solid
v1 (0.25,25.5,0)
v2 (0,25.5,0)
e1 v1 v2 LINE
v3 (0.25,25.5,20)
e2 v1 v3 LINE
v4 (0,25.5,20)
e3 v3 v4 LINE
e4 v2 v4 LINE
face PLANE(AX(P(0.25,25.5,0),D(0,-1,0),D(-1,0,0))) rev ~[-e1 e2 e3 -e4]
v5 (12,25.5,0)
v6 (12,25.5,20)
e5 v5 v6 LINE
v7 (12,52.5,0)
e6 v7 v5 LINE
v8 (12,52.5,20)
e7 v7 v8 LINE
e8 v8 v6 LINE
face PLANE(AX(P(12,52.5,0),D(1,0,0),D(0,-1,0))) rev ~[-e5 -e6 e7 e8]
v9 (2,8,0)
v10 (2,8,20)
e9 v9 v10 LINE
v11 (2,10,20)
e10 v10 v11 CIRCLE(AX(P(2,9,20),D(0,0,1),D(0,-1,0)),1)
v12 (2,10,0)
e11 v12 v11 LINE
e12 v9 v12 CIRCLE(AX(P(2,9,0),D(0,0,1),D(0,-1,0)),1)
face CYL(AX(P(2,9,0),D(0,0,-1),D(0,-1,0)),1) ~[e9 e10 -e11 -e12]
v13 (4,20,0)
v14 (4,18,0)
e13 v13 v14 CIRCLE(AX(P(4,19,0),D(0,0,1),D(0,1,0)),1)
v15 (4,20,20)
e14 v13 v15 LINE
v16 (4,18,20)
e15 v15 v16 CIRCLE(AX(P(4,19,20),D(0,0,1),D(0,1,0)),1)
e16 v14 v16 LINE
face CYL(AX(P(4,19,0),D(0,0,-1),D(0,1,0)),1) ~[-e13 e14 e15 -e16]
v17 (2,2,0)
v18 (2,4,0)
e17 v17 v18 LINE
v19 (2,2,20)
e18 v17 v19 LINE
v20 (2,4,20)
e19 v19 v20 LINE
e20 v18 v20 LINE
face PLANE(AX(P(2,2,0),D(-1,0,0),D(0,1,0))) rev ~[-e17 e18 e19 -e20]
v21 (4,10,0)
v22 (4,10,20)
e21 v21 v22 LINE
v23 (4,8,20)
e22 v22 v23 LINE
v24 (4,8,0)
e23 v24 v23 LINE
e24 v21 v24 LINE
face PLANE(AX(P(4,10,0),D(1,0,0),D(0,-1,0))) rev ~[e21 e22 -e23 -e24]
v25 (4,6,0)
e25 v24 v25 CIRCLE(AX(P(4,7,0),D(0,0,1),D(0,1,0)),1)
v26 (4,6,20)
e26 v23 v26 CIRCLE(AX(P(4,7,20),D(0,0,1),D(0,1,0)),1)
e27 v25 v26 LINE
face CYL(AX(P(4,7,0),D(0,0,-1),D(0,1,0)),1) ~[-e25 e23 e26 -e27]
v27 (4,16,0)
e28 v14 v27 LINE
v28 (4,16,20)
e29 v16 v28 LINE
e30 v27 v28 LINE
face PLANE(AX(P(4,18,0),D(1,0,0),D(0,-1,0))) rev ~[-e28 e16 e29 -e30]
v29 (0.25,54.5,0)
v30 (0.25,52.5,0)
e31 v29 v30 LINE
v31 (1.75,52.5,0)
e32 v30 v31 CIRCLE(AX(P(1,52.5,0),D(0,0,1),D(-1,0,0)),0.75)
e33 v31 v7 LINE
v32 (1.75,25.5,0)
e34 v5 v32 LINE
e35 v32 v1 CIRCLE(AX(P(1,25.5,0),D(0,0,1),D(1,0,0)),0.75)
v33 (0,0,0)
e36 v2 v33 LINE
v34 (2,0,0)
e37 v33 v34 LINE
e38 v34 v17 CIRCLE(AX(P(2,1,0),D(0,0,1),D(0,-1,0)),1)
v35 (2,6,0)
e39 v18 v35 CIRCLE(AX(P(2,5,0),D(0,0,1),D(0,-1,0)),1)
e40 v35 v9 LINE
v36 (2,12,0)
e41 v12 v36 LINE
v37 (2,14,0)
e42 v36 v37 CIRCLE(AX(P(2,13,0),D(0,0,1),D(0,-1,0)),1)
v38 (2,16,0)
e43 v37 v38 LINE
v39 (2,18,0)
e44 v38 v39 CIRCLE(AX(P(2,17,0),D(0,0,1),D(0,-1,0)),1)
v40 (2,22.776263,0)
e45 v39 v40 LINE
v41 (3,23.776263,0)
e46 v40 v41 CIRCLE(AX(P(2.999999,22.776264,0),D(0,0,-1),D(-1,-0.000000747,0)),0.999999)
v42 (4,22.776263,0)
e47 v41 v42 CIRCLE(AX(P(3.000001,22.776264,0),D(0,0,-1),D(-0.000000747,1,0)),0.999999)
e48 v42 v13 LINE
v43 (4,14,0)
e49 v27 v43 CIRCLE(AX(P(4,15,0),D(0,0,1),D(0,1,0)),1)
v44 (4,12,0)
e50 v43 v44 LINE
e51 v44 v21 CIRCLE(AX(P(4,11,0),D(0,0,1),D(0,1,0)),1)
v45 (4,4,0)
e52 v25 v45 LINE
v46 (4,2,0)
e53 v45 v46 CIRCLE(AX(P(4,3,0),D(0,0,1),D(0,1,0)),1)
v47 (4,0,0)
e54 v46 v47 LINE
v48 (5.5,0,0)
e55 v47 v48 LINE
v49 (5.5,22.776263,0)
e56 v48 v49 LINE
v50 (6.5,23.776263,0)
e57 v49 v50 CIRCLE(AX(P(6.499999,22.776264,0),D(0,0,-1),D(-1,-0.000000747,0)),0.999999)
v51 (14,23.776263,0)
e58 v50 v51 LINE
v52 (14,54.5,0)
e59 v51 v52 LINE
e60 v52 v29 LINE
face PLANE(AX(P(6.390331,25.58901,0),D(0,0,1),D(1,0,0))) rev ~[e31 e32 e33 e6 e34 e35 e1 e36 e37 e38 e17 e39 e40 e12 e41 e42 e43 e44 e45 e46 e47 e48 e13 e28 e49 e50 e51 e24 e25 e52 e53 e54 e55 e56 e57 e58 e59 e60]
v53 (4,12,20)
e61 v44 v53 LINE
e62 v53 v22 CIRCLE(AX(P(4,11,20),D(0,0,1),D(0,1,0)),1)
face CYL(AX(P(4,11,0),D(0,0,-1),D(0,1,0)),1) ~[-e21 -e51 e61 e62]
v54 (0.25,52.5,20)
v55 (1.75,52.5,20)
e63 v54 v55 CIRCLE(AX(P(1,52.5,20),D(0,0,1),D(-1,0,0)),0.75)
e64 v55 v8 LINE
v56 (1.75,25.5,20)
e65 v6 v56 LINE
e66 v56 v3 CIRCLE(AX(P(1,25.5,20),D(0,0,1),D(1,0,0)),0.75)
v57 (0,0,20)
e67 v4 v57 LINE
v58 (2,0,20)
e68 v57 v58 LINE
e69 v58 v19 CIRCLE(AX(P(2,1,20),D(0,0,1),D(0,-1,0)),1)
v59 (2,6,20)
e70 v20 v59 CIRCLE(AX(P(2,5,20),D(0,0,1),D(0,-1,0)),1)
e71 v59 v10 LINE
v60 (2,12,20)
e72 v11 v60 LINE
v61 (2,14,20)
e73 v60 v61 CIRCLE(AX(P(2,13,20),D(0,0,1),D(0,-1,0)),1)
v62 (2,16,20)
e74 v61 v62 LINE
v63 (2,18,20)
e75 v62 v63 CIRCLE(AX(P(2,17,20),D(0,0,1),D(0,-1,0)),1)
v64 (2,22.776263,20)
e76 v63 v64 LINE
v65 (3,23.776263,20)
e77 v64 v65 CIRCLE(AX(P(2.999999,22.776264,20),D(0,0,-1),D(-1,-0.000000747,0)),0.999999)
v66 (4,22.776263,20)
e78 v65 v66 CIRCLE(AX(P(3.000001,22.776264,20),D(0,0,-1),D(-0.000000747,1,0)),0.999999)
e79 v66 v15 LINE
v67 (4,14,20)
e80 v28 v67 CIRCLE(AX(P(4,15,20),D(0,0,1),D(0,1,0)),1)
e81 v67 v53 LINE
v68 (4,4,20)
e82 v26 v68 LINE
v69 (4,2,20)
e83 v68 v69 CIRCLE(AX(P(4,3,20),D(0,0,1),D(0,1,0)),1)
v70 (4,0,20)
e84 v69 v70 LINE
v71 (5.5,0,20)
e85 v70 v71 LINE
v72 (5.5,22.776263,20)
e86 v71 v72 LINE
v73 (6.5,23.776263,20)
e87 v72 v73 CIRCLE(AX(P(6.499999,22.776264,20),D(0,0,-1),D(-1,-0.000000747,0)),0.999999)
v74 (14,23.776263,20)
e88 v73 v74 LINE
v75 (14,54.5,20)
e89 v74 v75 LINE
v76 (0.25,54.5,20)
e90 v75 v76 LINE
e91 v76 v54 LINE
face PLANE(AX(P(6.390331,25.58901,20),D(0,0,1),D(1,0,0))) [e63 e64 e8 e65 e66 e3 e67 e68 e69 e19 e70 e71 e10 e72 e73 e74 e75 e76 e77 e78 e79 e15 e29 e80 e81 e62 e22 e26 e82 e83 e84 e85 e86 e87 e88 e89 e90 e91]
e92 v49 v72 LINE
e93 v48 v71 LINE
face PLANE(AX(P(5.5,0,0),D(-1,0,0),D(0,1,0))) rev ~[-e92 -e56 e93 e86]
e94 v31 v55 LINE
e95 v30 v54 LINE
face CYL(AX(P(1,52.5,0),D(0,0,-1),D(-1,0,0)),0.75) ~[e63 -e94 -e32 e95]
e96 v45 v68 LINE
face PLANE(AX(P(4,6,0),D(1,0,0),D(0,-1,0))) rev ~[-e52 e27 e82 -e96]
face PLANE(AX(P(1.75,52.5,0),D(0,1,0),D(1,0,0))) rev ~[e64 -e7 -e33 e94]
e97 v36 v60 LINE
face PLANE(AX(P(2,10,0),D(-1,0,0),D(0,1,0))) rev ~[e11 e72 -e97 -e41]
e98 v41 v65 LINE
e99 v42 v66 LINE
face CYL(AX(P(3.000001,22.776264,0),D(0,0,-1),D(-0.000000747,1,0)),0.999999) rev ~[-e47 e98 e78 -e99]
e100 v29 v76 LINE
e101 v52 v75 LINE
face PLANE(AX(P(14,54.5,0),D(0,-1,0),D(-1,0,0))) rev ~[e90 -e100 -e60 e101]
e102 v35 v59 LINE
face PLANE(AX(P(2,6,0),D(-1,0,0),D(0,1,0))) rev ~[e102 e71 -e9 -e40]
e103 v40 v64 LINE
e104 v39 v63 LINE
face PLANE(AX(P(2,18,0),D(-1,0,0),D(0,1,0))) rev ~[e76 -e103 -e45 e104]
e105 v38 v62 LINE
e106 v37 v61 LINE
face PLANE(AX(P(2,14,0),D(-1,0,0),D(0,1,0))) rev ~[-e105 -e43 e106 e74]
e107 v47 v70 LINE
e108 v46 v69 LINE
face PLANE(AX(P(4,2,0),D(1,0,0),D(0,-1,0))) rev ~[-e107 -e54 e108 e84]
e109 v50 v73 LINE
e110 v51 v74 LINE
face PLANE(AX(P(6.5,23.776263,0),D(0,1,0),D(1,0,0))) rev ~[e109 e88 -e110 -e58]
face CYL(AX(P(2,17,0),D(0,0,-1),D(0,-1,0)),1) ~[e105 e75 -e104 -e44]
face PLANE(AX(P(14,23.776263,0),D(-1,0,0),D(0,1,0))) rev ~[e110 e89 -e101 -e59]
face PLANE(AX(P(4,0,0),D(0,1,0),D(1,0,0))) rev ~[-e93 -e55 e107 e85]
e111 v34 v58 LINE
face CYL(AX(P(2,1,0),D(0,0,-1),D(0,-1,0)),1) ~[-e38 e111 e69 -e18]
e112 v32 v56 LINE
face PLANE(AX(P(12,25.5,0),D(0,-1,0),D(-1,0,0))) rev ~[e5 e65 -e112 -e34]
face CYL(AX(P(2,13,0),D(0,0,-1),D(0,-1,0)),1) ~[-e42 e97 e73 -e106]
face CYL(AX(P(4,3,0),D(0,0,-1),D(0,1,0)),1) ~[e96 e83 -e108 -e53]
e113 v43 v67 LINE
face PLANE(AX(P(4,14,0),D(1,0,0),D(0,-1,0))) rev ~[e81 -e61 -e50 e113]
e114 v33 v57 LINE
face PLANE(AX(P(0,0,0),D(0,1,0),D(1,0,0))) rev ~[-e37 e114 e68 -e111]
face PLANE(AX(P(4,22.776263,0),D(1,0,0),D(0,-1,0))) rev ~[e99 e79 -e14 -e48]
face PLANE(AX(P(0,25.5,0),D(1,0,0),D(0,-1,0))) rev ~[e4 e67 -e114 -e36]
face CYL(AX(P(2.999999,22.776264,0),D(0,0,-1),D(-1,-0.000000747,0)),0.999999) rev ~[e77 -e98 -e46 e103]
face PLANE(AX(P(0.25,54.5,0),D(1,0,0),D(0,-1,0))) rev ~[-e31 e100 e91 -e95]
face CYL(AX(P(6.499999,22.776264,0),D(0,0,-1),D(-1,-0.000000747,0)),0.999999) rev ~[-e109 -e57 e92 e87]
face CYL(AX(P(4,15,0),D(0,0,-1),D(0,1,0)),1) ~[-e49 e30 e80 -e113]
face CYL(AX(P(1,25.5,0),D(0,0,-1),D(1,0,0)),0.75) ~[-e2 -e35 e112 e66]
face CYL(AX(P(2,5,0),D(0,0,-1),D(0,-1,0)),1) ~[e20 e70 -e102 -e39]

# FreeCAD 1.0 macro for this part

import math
import FreeCAD as App
import Part
import Sketcher

doc = App.newDocument("Part")
body = doc.addObject("PartDesign::Body", "Body")

sketch1 = body.newObject("Sketcher::SketchObject", "Sketch")
sketch1.AttachmentSupport = (doc.getObject("XY_Plane"), [""])
sketch1.MapMode = "FlatFace"
sketch1.addGeometry([
    Part.LineSegment(App.Vector(0, 25.5, 0), App.Vector(0, 0, 0)),
    Part.LineSegment(App.Vector(0, 0, 0), App.Vector(2, 0, 0)),
    Part.ArcOfCircle(Part.Circle(App.Vector(2, 1, 0), App.Vector(0, 0, 1), 1), math.radians(-90), math.radians(90)),
    Part.LineSegment(App.Vector(2, 2, 0), App.Vector(2, 4, 0)),
    Part.ArcOfCircle(Part.Circle(App.Vector(2, 5, 0), App.Vector(0, 0, 1), 1), math.radians(-90), math.radians(90)),
    Part.LineSegment(App.Vector(2, 6, 0), App.Vector(2, 8, 0)),
    Part.ArcOfCircle(Part.Circle(App.Vector(2, 9, 0), App.Vector(0, 0, 1), 1), math.radians(-90), math.radians(90)),
    Part.LineSegment(App.Vector(2, 10, 0), App.Vector(2, 12, 0)),
    Part.ArcOfCircle(Part.Circle(App.Vector(2, 13, 0), App.Vector(0, 0, 1), 1), math.radians(-90), math.radians(90)),
    Part.LineSegment(App.Vector(2, 14, 0), App.Vector(2, 16, 0)),
    Part.ArcOfCircle(Part.Circle(App.Vector(2, 17, 0), App.Vector(0, 0, 1), 1), math.radians(-90), math.radians(90)),
    Part.LineSegment(App.Vector(2, 18, 0), App.Vector(2, 22.78, 0)),
    Part.ArcOfCircle(Part.Circle(App.Vector(3, 22.78, 0), App.Vector(0, 0, 1), 1), math.radians(90), math.radians(180)),
    Part.ArcOfCircle(Part.Circle(App.Vector(3, 22.78, 0), App.Vector(0, 0, 1), 1), math.radians(0), math.radians(90)),
    Part.LineSegment(App.Vector(4, 22.78, 0), App.Vector(4, 20, 0)),
    Part.ArcOfCircle(Part.Circle(App.Vector(4, 19, 0), App.Vector(0, 0, 1), 1), math.radians(90), math.radians(270)),
    Part.LineSegment(App.Vector(4, 18, 0), App.Vector(4, 16, 0)),
    Part.ArcOfCircle(Part.Circle(App.Vector(4, 15, 0), App.Vector(0, 0, 1), 1), math.radians(90), math.radians(270)),
    Part.LineSegment(App.Vector(4, 14, 0), App.Vector(4, 12, 0)),
    Part.ArcOfCircle(Part.Circle(App.Vector(4, 11, 0), App.Vector(0, 0, 1), 1), math.radians(90), math.radians(270)),
    Part.LineSegment(App.Vector(4, 10, 0), App.Vector(4, 8, 0)),
    Part.ArcOfCircle(Part.Circle(App.Vector(4, 7, 0), App.Vector(0, 0, 1), 1), math.radians(90), math.radians(270)),
    Part.LineSegment(App.Vector(4, 6, 0), App.Vector(4, 4, 0)),
    Part.ArcOfCircle(Part.Circle(App.Vector(4, 3, 0), App.Vector(0, 0, 1), 1), math.radians(90), math.radians(270)),
    Part.LineSegment(App.Vector(4, 2, 0), App.Vector(4, 0, 0)),
    Part.LineSegment(App.Vector(4, 0, 0), App.Vector(5.5, 0, 0)),
    Part.LineSegment(App.Vector(5.5, 0, 0), App.Vector(5.5, 22.78, 0)),
    Part.ArcOfCircle(Part.Circle(App.Vector(6.5, 22.78, 0), App.Vector(0, 0, 1), 1), math.radians(90), math.radians(180)),
    Part.LineSegment(App.Vector(6.5, 23.78, 0), App.Vector(14, 23.78, 0)),
    Part.LineSegment(App.Vector(14, 23.78, 0), App.Vector(14, 54.5, 0)),
    Part.LineSegment(App.Vector(14, 54.5, 0), App.Vector(0.25, 54.5, 0)),
    Part.LineSegment(App.Vector(0.25, 54.5, 0), App.Vector(0.25, 52.5, 0)),
    Part.ArcOfCircle(Part.Circle(App.Vector(1, 52.5, 0), App.Vector(0, 0, 1), 0.75), math.radians(180), math.radians(360)),
    Part.LineSegment(App.Vector(1.75, 52.5, 0), App.Vector(12, 52.5, 0)),
    Part.LineSegment(App.Vector(12, 52.5, 0), App.Vector(12, 25.5, 0)),
    Part.LineSegment(App.Vector(12, 25.5, 0), App.Vector(1.75, 25.5, 0)),
    Part.ArcOfCircle(Part.Circle(App.Vector(1, 25.5, 0), App.Vector(0, 0, 1), 0.75), math.radians(0), math.radians(180)),
    Part.LineSegment(App.Vector(0.25, 25.5, 0), App.Vector(0, 25.5, 0)),
], False)
sketch1.addConstraint([
    Sketcher.Constraint("Coincident", 0, 2, 1, 1),
    Sketcher.Constraint("Tangent", 1, 2, 2, 1),
    Sketcher.Constraint("Coincident", 2, 2, 3, 1),
    Sketcher.Constraint("Coincident", 3, 2, 4, 1),
    Sketcher.Constraint("Coincident", 4, 2, 5, 1),
    Sketcher.Constraint("Coincident", 5, 2, 6, 1),
    Sketcher.Constraint("Coincident", 6, 2, 7, 1),
    Sketcher.Constraint("Coincident", 7, 2, 8, 1),
    Sketcher.Constraint("Coincident", 8, 2, 9, 1),
    Sketcher.Constraint("Coincident", 9, 2, 10, 1),
    Sketcher.Constraint("Coincident", 10, 2, 11, 1),
    Sketcher.Constraint("Tangent", 11, 2, 12, 2),
    Sketcher.Constraint("Tangent", 12, 1, 13, 2),
    Sketcher.Constraint("Tangent", 13, 1, 14, 1),
    Sketcher.Constraint("Coincident", 14, 2, 15, 1),
    Sketcher.Constraint("Coincident", 15, 2, 16, 1),
    Sketcher.Constraint("Coincident", 16, 2, 17, 1),
    Sketcher.Constraint("Coincident", 17, 2, 18, 1),
    Sketcher.Constraint("Coincident", 18, 2, 19, 1),
    Sketcher.Constraint("Coincident", 19, 2, 20, 1),
    Sketcher.Constraint("Coincident", 20, 2, 21, 1),
    Sketcher.Constraint("Coincident", 21, 2, 22, 1),
    Sketcher.Constraint("Coincident", 22, 2, 23, 1),
    Sketcher.Constraint("Coincident", 23, 2, 24, 1),
    Sketcher.Constraint("Coincident", 24, 2, 25, 1),
    Sketcher.Constraint("Coincident", 25, 2, 26, 1),
    Sketcher.Constraint("Tangent", 26, 2, 27, 2),
    Sketcher.Constraint("Tangent", 27, 1, 28, 1),
    Sketcher.Constraint("Coincident", 28, 2, 29, 1),
    Sketcher.Constraint("Coincident", 29, 2, 30, 1),
    Sketcher.Constraint("Coincident", 30, 2, 31, 1),
    Sketcher.Constraint("Tangent", 31, 2, 32, 1),
    Sketcher.Constraint("Coincident", 32, 2, 33, 1),
    Sketcher.Constraint("Coincident", 33, 2, 34, 1),
    Sketcher.Constraint("Coincident", 34, 2, 35, 1),
    Sketcher.Constraint("Coincident", 35, 2, 36, 1),
    Sketcher.Constraint("Coincident", 36, 2, 37, 1),
    Sketcher.Constraint("Coincident", 37, 2, 0, 1),
    Sketcher.Constraint("Vertical", 0),
    Sketcher.Constraint("Horizontal", 1),
    Sketcher.Constraint("Vertical", 3),
    Sketcher.Constraint("Vertical", 5),
    Sketcher.Constraint("Vertical", 7),
    Sketcher.Constraint("Vertical", 9),
    Sketcher.Constraint("Vertical", 11),
    Sketcher.Constraint("Vertical", 14),
    Sketcher.Constraint("Vertical", 16),
    Sketcher.Constraint("Vertical", 18),
    Sketcher.Constraint("Vertical", 20),
    Sketcher.Constraint("Vertical", 22),
    Sketcher.Constraint("Vertical", 24),
    Sketcher.Constraint("Horizontal", 25),
    Sketcher.Constraint("Vertical", 26),
    Sketcher.Constraint("Horizontal", 28),
    Sketcher.Constraint("Vertical", 29),
    Sketcher.Constraint("Horizontal", 30),
    Sketcher.Constraint("Vertical", 31),
    Sketcher.Constraint("Horizontal", 33),
    Sketcher.Constraint("Vertical", 34),
    Sketcher.Constraint("Horizontal", 35),
    Sketcher.Constraint("Horizontal", 37),
    Sketcher.Constraint("Coincident", 0, 2, -1, 1),
    Sketcher.Constraint("Equal", 2, 4),
    Sketcher.Constraint("Equal", 4, 6),
    Sketcher.Constraint("Equal", 6, 8),
    Sketcher.Constraint("Equal", 8, 10),
    Sketcher.Constraint("Equal", 10, 12),
    Sketcher.Constraint("Equal", 12, 13),
    Sketcher.Constraint("Equal", 13, 15),
    Sketcher.Constraint("Equal", 15, 17),
    Sketcher.Constraint("Equal", 17, 19),
    Sketcher.Constraint("Equal", 19, 21),
    Sketcher.Constraint("Equal", 21, 23),
    Sketcher.Constraint("Equal", 23, 27),
    Sketcher.Constraint("Equal", 32, 36),
    Sketcher.Constraint("PointOnObject", 24, 2, -1),
    Sketcher.Constraint("Horizontal", 13, 3, 27, 3),
    Sketcher.Constraint("Horizontal", 10, 2, 15, 2),
    Sketcher.Constraint("Horizontal", 9, 2, 16, 2),
    Sketcher.Constraint("Horizontal", 8, 2, 17, 2),
    Sketcher.Constraint("Horizontal", 7, 2, 18, 2),
    Sketcher.Constraint("Horizontal", 6, 2, 19, 2),
    Sketcher.Constraint("Horizontal", 5, 2, 20, 2),
    Sketcher.Constraint("Horizontal", 4, 2, 21, 2),
    Sketcher.Constraint("Horizontal", 3, 2, 22, 2),
    Sketcher.Constraint("Horizontal", 2, 2, 23, 2),
    Sketcher.Constraint("Horizontal", 31, 2, 32, 2),
    Sketcher.Constraint("Horizontal", 36, 3, 34, 2),
    Sketcher.Constraint("Horizontal", 35, 2, 36, 2),
    Sketcher.Constraint("Vertical", 2, 3, 4, 3),
    Sketcher.Constraint("Vertical", 4, 3, 6, 3),
    Sketcher.Constraint("Vertical", 6, 3, 8, 3),
    Sketcher.Constraint("Vertical", 8, 3, 10, 3),
    Sketcher.Constraint("Vertical", 15, 3, 17, 3),
    Sketcher.Constraint("Vertical", 17, 3, 19, 3),
    Sketcher.Constraint("Vertical", 19, 3, 21, 3),
    Sketcher.Constraint("Vertical", 21, 3, 23, 3),
    Sketcher.Constraint("Vertical", 32, 3, 36, 3),
    Sketcher.Constraint("Vertical", 1, 2, 2, 2),
    Sketcher.Constraint("Vertical", 3, 2, 4, 2),
    Sketcher.Constraint("Vertical", 5, 2, 6, 2),
    Sketcher.Constraint("Vertical", 7, 2, 8, 2),
    Sketcher.Constraint("Vertical", 9, 2, 10, 2),
    Sketcher.Constraint("Vertical", 13, 3, 12, 1),
    Sketcher.Constraint("Vertical", 23, 3, 13, 1),
    Sketcher.Constraint("Vertical", 14, 2, 15, 2),
    Sketcher.Constraint("Vertical", 16, 2, 17, 2),
    Sketcher.Constraint("Vertical", 18, 2, 19, 2),
    Sketcher.Constraint("Vertical", 20, 2, 21, 2),
    Sketcher.Constraint("Vertical", 22, 2, 23, 2),
    Sketcher.Constraint("Equal", 1, 3),
    Sketcher.Constraint("Equal", 24, 31),
    Sketcher.Constraint("Radius", 2, 1.0),
    Sketcher.Constraint("DistanceY", 34, 2, 34, 1, 27.0),
    Sketcher.Constraint("Radius", 32, 0.75),
    Sketcher.Constraint("DistanceX", 25, 1, 25, 2, 1.5),
    Sketcher.Constraint("DistanceX", 28, 1, 28, 2, 7.5),
    Sketcher.Constraint("DistanceY", 0, 2, 0, 1, 25.5),
    Sketcher.Constraint("DistanceX", -1, 1, 32, 3, 1.0),
    Sketcher.Constraint("DistanceX", -1, 1, 33, 2, 12.0),
    Sketcher.Constraint("DistanceY", 11, 1, 11, 2, 4.776263),
])
pad1 = body.newObject("PartDesign::Pad", "Pad")
pad1.Profile = sketch1
pad1.Length = 20

doc.recompute()
